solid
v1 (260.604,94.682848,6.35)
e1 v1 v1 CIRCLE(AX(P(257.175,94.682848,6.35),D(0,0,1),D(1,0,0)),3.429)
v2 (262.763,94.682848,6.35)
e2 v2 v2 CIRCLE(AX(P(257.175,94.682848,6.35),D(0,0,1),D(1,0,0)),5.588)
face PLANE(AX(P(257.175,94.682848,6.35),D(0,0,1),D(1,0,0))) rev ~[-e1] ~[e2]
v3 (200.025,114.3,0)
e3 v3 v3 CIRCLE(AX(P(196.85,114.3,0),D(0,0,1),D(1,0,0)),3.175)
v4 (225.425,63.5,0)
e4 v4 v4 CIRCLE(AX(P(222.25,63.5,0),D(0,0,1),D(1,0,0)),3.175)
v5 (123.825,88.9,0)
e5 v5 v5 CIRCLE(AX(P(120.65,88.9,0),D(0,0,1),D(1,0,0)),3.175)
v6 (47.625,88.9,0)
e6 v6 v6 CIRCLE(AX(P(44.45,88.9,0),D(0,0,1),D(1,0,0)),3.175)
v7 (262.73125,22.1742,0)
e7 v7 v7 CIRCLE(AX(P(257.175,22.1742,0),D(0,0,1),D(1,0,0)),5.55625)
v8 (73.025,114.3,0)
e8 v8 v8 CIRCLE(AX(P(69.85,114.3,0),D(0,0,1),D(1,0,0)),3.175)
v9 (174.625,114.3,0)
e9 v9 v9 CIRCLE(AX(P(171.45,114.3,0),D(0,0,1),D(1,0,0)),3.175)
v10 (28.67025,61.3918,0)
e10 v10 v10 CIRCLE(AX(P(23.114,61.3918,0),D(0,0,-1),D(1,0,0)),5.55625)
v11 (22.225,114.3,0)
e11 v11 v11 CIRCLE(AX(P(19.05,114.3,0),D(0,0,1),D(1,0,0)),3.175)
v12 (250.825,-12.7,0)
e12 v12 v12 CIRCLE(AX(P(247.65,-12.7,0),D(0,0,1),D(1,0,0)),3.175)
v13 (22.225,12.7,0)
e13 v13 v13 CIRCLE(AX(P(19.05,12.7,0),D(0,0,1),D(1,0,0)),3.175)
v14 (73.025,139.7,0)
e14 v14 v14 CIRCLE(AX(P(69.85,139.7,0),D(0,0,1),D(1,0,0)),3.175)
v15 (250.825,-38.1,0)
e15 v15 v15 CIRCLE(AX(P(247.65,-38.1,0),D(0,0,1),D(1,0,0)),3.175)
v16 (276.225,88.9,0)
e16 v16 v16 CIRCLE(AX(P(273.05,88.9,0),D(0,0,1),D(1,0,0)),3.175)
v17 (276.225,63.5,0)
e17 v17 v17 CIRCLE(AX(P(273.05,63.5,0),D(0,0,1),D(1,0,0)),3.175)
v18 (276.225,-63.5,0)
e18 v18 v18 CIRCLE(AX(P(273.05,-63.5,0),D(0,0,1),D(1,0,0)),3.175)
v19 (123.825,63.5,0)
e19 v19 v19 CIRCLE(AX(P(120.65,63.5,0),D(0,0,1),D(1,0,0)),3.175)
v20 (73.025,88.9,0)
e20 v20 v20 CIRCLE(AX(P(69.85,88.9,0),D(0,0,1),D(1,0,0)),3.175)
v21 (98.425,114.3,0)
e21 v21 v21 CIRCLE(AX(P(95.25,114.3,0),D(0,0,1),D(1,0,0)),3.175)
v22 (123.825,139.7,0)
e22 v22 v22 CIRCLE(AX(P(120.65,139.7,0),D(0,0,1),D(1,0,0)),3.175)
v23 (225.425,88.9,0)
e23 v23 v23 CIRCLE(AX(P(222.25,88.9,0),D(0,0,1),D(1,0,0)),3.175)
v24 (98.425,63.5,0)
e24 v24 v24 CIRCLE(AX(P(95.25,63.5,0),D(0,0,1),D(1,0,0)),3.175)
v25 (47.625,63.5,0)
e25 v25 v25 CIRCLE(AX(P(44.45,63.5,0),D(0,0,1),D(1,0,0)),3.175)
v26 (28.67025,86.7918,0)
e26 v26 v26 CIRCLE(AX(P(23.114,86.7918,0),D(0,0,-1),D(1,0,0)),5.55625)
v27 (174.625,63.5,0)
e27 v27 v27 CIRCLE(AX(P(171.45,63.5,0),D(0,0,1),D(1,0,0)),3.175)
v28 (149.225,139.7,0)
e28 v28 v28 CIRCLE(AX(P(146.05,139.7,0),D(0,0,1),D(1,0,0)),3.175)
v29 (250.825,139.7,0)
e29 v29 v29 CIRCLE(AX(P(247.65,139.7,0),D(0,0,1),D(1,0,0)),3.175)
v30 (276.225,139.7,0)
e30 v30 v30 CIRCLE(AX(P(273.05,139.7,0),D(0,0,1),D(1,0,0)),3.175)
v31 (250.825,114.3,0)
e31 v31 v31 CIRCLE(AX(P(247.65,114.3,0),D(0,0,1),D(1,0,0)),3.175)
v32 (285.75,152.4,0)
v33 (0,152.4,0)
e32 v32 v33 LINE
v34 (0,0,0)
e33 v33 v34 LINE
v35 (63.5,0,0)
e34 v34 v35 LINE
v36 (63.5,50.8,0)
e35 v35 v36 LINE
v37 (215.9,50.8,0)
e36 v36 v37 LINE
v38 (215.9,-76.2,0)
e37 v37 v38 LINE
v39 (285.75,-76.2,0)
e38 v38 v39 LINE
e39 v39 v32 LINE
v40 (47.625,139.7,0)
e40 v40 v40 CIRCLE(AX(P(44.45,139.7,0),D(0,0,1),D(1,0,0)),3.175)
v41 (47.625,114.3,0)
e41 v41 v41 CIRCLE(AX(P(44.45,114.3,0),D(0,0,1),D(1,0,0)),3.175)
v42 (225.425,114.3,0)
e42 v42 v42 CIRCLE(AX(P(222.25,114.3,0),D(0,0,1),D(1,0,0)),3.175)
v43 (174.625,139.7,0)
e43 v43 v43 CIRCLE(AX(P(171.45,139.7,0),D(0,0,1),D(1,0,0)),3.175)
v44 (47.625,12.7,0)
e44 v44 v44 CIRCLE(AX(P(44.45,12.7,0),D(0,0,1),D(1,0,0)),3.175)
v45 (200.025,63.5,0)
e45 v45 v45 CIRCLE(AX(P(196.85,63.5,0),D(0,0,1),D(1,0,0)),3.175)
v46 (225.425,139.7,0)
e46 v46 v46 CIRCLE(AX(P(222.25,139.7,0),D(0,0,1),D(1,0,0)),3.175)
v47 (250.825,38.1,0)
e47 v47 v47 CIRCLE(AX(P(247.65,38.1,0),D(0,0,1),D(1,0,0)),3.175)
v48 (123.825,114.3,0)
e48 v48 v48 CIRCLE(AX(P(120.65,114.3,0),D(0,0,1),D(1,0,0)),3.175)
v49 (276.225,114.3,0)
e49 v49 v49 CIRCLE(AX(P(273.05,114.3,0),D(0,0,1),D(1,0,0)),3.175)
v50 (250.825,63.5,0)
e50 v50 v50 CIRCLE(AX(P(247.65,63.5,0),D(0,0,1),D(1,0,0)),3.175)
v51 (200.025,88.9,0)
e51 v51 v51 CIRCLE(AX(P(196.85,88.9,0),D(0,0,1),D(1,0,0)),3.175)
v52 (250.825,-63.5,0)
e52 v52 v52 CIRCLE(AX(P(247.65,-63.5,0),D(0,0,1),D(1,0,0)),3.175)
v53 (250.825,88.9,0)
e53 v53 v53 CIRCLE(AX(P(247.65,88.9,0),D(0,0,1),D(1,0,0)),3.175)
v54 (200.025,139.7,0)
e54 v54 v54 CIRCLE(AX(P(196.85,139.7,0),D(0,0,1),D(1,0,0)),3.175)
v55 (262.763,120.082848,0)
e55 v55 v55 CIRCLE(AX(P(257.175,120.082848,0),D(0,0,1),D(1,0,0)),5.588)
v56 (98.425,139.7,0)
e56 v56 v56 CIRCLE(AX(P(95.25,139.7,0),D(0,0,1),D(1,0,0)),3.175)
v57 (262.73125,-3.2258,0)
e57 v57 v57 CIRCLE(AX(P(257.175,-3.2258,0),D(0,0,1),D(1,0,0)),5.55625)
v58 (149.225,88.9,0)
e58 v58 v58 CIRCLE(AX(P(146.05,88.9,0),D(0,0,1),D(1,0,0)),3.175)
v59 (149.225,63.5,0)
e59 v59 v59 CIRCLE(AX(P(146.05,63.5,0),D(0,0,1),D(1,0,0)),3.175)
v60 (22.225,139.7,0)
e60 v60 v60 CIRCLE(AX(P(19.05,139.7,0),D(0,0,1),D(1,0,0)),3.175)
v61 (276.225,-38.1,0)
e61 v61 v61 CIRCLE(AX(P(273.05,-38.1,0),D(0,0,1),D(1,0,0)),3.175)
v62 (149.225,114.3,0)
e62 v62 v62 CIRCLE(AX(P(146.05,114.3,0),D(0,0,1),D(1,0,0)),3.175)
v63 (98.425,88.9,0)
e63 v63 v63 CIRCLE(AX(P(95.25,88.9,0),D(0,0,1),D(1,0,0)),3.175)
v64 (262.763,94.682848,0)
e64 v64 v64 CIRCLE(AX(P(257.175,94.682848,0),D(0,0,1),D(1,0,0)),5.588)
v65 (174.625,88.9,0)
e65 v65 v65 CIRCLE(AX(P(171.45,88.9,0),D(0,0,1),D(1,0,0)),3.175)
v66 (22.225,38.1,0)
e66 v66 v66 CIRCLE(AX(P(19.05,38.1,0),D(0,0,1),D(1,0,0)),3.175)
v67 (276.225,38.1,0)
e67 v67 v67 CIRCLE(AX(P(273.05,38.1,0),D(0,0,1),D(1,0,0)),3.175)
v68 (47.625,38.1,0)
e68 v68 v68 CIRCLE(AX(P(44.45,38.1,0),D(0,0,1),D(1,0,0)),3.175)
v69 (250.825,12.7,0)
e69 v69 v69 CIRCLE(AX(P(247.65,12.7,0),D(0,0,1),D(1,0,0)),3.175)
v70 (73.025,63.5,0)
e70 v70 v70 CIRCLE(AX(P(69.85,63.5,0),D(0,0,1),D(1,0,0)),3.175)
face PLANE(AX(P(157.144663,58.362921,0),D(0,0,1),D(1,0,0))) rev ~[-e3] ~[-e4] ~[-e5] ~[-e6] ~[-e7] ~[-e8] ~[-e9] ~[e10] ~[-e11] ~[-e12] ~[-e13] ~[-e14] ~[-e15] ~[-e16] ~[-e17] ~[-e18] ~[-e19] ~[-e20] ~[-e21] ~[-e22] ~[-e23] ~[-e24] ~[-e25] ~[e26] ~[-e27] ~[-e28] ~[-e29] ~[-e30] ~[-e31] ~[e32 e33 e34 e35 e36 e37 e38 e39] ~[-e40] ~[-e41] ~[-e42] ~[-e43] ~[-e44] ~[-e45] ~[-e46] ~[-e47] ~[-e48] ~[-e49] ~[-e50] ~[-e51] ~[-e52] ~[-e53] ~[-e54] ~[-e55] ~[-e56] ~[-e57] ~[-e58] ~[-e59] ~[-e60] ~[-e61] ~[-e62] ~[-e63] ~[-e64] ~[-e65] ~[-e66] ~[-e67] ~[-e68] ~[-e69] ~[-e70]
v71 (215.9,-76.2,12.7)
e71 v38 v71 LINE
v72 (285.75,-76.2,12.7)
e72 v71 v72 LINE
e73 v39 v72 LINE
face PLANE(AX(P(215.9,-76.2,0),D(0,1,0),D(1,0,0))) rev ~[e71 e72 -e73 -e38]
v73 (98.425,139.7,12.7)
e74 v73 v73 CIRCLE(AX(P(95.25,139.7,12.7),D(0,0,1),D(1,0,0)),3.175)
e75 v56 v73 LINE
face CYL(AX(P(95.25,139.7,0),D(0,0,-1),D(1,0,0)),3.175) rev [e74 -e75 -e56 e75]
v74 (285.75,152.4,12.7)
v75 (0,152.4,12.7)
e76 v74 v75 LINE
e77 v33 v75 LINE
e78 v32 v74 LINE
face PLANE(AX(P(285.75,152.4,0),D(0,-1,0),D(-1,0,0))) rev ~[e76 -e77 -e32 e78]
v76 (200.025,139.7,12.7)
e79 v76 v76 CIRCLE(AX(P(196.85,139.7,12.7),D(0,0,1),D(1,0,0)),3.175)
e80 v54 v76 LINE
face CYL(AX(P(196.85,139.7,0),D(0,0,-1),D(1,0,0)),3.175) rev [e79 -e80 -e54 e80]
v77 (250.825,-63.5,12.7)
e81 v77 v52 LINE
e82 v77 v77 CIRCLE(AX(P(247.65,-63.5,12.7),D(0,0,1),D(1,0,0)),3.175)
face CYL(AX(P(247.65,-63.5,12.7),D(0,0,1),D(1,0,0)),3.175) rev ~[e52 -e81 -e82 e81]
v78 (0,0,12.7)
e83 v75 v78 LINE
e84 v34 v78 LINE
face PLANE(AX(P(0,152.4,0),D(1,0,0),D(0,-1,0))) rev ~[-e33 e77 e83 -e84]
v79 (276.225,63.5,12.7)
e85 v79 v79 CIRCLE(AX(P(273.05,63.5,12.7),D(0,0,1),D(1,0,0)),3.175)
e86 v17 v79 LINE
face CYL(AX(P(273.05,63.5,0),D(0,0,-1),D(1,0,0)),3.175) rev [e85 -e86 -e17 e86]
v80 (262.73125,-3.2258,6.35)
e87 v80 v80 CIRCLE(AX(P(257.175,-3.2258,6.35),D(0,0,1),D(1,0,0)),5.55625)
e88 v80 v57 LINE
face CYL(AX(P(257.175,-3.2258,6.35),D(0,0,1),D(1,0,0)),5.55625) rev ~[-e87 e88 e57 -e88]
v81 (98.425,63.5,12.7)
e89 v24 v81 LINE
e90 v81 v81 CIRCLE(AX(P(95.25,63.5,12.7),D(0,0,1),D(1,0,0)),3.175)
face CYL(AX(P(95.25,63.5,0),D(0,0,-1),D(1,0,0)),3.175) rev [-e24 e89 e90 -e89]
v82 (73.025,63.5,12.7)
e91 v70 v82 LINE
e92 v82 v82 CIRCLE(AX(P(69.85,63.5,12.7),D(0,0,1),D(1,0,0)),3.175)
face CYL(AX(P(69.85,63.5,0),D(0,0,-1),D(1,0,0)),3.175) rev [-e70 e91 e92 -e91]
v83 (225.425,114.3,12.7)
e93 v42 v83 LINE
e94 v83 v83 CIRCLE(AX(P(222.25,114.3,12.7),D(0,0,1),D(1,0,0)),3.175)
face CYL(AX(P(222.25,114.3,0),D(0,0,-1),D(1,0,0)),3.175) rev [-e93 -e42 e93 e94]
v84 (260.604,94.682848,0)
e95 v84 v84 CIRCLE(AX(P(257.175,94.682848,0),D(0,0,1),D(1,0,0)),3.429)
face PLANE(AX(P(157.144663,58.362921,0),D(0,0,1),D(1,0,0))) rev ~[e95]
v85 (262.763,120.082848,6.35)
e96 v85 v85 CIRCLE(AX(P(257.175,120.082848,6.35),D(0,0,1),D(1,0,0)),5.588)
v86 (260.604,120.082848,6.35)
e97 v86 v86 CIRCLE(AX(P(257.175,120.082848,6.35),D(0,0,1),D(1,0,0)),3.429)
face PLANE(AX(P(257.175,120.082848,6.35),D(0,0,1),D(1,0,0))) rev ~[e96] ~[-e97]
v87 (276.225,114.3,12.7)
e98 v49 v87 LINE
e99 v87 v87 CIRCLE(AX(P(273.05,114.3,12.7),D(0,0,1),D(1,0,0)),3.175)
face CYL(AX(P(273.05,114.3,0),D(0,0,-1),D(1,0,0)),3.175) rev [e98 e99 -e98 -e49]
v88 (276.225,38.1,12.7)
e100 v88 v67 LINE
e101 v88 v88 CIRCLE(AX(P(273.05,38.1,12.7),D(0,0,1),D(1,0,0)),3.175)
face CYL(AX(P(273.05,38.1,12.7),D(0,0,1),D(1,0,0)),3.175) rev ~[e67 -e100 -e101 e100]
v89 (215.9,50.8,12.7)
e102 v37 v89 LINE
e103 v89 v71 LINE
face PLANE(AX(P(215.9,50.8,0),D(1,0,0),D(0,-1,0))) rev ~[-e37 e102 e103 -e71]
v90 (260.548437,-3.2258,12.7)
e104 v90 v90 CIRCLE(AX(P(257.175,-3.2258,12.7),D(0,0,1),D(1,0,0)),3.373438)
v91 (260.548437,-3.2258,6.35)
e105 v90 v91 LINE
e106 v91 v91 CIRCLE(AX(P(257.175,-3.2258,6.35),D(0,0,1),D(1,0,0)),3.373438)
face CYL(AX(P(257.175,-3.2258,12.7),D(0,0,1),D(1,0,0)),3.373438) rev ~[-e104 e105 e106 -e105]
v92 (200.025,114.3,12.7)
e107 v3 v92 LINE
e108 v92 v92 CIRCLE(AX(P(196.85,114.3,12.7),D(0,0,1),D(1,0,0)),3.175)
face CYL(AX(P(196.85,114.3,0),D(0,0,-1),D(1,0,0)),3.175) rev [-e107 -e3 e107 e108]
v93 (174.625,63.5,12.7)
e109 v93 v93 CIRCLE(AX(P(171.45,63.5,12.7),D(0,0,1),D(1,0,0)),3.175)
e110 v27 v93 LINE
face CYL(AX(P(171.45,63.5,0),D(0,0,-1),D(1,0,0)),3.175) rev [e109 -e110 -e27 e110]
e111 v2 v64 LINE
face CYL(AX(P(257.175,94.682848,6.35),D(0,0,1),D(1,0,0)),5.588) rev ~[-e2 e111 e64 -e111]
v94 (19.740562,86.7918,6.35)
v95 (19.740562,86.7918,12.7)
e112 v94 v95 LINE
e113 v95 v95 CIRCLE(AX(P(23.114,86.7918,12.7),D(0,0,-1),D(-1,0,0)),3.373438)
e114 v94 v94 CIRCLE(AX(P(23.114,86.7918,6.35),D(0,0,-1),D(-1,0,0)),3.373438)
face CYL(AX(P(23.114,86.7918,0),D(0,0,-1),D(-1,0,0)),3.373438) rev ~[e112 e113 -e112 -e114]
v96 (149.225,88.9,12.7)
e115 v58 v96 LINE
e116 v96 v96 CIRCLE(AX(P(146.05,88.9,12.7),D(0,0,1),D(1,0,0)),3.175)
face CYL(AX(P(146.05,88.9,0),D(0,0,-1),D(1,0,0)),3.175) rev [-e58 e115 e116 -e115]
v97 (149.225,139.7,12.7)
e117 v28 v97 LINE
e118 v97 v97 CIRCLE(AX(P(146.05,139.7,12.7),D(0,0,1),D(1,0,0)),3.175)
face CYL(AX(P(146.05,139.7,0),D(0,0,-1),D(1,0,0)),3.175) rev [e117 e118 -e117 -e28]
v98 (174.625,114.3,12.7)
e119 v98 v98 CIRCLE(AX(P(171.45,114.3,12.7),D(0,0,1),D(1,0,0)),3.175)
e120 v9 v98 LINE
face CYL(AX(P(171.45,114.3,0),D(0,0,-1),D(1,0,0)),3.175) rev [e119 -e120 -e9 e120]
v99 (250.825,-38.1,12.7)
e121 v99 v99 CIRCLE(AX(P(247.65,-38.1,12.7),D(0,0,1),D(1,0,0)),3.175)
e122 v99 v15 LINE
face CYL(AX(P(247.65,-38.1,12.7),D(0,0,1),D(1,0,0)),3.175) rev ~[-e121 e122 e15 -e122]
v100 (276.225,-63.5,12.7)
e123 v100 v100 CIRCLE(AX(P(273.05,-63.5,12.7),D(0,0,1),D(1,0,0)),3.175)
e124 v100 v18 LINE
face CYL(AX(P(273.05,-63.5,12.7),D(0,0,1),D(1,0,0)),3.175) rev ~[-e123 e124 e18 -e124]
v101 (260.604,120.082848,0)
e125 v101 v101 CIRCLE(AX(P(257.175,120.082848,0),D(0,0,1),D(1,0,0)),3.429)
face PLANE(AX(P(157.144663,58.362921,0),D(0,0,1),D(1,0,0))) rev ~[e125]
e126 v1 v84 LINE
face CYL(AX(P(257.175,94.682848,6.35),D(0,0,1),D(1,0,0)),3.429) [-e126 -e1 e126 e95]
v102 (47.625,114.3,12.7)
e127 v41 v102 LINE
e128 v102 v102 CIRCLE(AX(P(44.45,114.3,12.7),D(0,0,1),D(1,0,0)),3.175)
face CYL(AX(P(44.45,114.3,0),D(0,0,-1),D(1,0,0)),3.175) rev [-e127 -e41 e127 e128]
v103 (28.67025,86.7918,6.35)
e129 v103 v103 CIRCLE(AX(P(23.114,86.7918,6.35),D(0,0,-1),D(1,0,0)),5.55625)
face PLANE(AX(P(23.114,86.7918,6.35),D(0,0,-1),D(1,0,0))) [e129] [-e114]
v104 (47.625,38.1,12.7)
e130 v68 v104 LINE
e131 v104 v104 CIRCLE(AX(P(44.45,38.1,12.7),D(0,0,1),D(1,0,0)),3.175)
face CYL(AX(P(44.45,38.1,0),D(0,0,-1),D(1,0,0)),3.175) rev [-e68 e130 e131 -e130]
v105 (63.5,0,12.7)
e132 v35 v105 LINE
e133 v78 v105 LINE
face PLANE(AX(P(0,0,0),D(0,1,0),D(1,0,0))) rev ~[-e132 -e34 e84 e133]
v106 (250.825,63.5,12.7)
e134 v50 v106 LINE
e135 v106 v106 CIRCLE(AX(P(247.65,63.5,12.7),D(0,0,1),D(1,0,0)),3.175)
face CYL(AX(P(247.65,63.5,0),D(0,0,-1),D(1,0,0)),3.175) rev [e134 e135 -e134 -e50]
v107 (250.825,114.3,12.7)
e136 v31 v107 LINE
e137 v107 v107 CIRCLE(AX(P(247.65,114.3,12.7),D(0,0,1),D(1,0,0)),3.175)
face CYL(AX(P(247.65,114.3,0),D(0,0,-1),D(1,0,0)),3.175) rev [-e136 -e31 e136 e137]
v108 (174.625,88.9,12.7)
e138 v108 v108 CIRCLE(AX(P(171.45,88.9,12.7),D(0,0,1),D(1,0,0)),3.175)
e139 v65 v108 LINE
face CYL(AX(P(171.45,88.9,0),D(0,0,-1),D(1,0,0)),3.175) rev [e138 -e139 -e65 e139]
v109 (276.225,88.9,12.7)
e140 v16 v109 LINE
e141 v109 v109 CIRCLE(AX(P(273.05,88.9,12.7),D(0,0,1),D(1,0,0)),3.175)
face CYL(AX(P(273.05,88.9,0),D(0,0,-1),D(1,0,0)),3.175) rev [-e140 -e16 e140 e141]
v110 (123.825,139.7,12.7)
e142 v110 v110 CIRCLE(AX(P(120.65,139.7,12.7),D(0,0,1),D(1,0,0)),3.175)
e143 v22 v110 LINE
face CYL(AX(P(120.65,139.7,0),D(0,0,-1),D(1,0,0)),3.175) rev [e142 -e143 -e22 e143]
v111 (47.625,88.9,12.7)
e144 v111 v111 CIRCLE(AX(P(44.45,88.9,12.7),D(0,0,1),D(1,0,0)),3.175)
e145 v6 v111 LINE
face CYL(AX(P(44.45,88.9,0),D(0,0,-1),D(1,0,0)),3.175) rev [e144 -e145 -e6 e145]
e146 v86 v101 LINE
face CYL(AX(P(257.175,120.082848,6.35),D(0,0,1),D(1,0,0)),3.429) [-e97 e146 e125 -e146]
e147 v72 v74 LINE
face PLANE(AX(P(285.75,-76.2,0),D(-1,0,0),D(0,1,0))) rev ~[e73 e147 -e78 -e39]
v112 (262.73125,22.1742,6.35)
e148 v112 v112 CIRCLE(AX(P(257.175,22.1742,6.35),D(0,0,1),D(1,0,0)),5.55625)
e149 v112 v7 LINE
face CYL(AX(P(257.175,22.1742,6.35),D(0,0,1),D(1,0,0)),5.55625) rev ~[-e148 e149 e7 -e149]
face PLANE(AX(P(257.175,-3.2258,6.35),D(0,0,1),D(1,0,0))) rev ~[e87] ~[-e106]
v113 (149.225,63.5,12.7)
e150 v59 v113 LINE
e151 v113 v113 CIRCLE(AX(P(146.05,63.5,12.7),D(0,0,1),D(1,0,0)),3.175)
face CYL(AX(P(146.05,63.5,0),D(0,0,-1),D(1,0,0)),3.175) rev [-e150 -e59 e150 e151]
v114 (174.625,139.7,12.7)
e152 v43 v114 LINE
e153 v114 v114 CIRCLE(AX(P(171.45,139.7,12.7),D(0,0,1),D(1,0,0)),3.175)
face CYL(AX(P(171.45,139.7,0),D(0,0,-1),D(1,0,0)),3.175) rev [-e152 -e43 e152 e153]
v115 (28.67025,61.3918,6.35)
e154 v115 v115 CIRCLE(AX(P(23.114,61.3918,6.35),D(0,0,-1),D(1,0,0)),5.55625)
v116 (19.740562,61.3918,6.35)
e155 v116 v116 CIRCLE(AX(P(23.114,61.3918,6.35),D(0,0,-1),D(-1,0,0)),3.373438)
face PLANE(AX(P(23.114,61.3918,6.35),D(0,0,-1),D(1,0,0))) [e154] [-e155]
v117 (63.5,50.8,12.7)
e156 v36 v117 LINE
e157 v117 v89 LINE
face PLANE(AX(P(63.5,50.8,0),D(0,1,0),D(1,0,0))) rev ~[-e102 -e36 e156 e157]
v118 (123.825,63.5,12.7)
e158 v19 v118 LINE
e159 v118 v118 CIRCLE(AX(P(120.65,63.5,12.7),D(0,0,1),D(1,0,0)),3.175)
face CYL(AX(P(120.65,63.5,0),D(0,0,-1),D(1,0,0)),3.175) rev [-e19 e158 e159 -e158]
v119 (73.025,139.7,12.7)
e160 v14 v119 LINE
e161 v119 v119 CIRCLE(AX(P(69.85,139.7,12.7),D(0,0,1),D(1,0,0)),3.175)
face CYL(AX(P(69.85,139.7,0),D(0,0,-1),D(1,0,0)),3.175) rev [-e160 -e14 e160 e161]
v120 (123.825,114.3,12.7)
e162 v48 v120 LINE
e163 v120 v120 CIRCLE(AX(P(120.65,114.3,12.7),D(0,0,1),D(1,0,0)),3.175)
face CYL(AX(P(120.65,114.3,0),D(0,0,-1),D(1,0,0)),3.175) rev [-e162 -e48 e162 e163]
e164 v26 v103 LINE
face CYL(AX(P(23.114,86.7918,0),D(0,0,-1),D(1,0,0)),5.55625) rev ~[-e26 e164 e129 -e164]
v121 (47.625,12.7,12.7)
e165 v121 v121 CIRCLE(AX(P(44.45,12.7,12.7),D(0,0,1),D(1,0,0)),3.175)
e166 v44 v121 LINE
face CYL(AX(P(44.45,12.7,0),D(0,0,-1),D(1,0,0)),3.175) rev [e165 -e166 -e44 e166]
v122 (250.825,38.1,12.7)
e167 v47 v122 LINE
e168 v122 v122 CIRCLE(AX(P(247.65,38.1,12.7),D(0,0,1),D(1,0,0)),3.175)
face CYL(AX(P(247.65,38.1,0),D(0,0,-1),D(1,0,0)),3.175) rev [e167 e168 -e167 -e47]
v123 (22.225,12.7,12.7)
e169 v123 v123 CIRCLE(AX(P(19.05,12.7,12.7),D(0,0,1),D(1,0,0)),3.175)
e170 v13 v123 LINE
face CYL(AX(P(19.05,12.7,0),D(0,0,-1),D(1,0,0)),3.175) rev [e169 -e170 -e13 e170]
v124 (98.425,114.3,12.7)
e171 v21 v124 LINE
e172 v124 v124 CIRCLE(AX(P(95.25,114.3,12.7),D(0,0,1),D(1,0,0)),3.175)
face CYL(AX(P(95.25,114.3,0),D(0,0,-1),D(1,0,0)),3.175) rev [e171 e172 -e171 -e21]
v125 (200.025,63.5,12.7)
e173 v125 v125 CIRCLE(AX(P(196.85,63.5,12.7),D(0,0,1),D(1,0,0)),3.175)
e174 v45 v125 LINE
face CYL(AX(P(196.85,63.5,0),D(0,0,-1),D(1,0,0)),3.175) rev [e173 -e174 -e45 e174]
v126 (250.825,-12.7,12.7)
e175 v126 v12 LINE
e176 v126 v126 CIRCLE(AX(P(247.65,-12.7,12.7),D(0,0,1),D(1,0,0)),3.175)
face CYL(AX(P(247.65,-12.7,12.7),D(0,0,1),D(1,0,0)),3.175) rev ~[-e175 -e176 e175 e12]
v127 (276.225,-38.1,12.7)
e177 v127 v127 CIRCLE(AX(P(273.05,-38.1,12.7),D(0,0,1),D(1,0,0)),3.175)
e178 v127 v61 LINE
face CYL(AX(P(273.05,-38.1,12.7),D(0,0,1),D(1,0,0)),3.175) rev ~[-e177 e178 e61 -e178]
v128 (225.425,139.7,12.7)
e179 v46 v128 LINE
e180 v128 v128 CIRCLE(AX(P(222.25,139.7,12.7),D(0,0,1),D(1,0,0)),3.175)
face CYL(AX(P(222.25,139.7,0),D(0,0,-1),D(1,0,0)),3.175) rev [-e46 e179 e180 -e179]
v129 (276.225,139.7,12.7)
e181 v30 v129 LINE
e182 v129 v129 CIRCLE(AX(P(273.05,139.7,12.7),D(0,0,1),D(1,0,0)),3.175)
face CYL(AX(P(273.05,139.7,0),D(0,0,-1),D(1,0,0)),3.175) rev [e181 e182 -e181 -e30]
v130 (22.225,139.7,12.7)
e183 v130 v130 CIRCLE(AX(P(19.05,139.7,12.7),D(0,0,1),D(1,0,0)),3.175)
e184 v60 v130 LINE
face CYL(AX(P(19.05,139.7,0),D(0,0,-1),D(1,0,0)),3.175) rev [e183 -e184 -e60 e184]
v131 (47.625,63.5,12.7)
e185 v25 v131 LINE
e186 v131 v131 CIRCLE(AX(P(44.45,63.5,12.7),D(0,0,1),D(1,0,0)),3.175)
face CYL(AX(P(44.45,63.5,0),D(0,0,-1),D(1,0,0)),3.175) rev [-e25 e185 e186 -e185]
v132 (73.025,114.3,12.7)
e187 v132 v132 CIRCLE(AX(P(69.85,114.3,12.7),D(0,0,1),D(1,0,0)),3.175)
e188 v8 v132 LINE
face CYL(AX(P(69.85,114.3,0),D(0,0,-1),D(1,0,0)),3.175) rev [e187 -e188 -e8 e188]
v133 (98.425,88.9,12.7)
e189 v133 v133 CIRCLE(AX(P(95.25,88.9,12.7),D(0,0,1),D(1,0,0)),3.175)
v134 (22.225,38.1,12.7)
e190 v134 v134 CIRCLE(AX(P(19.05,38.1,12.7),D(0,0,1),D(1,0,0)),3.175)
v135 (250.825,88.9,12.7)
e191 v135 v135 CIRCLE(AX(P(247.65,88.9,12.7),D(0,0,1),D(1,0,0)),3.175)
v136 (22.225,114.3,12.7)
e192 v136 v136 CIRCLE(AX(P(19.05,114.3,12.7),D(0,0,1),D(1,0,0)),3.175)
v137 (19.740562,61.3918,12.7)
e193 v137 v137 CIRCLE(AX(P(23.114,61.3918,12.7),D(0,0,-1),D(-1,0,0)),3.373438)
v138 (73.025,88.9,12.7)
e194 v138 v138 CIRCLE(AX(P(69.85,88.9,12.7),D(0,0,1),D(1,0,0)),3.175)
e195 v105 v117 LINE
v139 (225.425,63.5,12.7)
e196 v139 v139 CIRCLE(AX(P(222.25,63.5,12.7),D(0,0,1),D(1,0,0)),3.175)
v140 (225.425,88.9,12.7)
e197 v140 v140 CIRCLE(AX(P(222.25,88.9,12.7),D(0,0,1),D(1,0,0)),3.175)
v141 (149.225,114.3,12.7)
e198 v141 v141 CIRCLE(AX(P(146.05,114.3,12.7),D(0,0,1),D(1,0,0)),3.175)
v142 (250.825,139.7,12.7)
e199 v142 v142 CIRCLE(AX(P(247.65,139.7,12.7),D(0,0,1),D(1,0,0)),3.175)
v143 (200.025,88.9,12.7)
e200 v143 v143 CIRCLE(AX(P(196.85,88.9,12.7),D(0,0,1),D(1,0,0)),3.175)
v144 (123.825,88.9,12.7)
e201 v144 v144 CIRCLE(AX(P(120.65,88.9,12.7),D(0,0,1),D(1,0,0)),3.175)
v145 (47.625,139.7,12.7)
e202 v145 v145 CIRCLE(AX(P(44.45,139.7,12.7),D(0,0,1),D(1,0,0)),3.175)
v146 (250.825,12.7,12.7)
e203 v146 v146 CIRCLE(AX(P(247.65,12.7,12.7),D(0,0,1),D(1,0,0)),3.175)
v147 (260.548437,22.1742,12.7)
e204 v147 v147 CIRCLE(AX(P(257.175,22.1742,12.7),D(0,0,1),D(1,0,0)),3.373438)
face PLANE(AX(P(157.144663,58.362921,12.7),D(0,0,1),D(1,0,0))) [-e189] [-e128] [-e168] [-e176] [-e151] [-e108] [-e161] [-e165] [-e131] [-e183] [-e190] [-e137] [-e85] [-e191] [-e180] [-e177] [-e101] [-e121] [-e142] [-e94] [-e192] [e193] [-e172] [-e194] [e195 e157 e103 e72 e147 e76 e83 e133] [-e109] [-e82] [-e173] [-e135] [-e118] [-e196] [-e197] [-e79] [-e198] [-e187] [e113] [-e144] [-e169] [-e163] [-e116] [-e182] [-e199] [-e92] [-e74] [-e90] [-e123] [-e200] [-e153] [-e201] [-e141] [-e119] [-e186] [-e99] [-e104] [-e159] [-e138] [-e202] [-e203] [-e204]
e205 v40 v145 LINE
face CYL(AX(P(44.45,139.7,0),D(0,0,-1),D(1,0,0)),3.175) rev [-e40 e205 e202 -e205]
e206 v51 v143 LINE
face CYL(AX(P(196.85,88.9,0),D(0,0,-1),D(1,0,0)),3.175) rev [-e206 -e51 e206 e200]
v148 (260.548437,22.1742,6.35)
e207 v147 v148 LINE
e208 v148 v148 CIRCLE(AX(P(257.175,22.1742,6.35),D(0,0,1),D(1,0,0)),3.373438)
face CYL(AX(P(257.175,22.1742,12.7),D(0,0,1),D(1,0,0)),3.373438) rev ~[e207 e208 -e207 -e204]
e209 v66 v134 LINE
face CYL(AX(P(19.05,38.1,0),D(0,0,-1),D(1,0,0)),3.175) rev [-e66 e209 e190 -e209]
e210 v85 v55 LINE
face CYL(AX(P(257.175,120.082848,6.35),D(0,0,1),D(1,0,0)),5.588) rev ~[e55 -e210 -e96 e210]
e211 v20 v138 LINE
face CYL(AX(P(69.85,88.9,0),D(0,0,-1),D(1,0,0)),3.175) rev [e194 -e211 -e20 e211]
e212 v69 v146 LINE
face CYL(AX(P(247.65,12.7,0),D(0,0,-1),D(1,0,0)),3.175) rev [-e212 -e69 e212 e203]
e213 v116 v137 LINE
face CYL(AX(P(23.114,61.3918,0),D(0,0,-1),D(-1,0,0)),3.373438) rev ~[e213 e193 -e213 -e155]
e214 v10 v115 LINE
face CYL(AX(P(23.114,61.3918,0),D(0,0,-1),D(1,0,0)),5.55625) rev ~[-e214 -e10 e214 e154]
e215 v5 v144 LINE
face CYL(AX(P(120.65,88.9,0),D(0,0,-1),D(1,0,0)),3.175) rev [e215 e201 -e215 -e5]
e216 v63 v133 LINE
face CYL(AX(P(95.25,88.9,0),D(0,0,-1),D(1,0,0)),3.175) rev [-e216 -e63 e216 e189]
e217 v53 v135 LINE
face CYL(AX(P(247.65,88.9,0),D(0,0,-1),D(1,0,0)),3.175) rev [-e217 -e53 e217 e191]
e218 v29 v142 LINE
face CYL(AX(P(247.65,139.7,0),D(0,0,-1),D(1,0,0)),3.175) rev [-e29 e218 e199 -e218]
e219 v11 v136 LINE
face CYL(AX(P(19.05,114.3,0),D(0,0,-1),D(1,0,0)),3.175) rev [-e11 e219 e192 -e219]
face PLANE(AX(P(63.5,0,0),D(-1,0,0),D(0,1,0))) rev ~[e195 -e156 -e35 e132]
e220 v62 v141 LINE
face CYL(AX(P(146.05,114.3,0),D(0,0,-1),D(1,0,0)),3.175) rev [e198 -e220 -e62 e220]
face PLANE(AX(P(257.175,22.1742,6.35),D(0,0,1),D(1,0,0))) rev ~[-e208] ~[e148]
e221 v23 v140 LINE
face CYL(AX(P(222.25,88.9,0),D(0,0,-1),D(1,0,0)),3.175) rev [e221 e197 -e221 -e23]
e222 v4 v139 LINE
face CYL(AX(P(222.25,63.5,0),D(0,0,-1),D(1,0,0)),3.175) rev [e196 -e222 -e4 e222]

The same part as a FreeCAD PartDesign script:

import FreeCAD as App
import Part
import Sketcher
from FreeCAD import Vector
Q = App.Units.Quantity

doc = App.newDocument("Part")
params = doc.addObject("Spreadsheet::Sheet", "Params")
for row, (alias, value) in enumerate([
    ("sketch1_diameter", "0.25 in"),
    ("sketch1_width", "6 in"),
    ("sketch1_height", "2 in"),
    ("sketch1_height2", "5 in"),
    ("sketch1_width2", "2.5 in"),
    ("pad1_length", "0.5 in"),
    ("sketch2_diameter", "0.25 in"),
    ("pocket1_length", "0.5 in"),
    ("sketch3_diameter", "0.265625 in"),
    ("pocket2_length", "0.5 in"),
    ("sketch4_diameter", "0.44 in"),
    ("sketch4_diameter2", "0.27 in"),
    ("sketch4_diameter3", "0.4375 in"),
    ("sketch4_diameter4", "0.265625 in"),
    ("pocket3_length", "0.25 in"),
    ("sketch5_diameter", "0.265625 in"),
    ("pocket4_length", "0.5 in"),
    ("sketch6_diameter", "0.4375 in"),
    ("sketch6_diameter2", "0.265625 in"),
    ("pocket5_length", "0.25 in"),
], start=1):
    params.set(f"A{row}", alias)
    params.set(f"B{row}", "=" + value)
    params.setAlias(f"B{row}", alias)

body = doc.addObject("PartDesign::Body", "Body")

sketch1 = body.newObject("Sketcher::SketchObject", "Sketch")
sketch1.AttachmentSupport = (doc.getObject("XY_Plane"), [""])
sketch1.MapMode = "FlatFace"
sketch1.addGeometry([
    Part.LineSegment(Vector(0, 152.4, 0), Vector(0, 0, 0)),
    Part.LineSegment(Vector(0, 0, 0), Vector(63.5, 0, 0)),
    Part.LineSegment(Vector(63.5, 0, 0), Vector(63.5, 50.8, 0)),
    Part.LineSegment(Vector(63.5, 50.8, 0), Vector(215.9, 50.8, 0)),
    Part.LineSegment(Vector(215.9, 50.8, 0), Vector(215.9, -76.2, 0)),
    Part.LineSegment(Vector(215.9, -76.2, 0), Vector(285.8, -76.2, 0)),
    Part.LineSegment(Vector(285.8, -76.2, 0), Vector(285.8, 152.4, 0)),
    Part.LineSegment(Vector(285.8, 152.4, 0), Vector(0, 152.4, 0)),
    Part.Circle(Vector(19.1, 12.7, 0), Vector(0, 0, 1), 3.2),
    Part.Circle(Vector(44.5, 12.7, 0), Vector(0, 0, 1), 3.2),
    Part.Circle(Vector(19.1, 38.1, 0), Vector(0, 0, 1), 3.2),
    Part.Circle(Vector(44.5, 38.1, 0), Vector(0, 0, 1), 3.2),
    Part.Circle(Vector(44.5, 63.5, 0), Vector(0, 0, 1), 3.2),
    Part.Circle(Vector(69.8, 63.5, 0), Vector(0, 0, 1), 3.2),
    Part.Circle(Vector(95.2, 63.5, 0), Vector(0, 0, 1), 3.2),
    Part.Circle(Vector(120.7, 63.5, 0), Vector(0, 0, 1), 3.2),
    Part.Circle(Vector(247.7, 12.7, 0), Vector(0, 0, 1), 3.2),
    Part.Circle(Vector(247.7, 38.1, 0), Vector(0, 0, 1), 3.2),
    Part.Circle(Vector(146.1, 63.5, 0), Vector(0, 0, 1), 3.2),
    Part.Circle(Vector(171.4, 63.5, 0), Vector(0, 0, 1), 3.2),
    Part.Circle(Vector(196.8, 63.5, 0), Vector(0, 0, 1), 3.2),
    Part.Circle(Vector(222.2, 63.5, 0), Vector(0, 0, 1), 3.2),
    Part.Circle(Vector(247.7, 63.5, 0), Vector(0, 0, 1), 3.2),
    Part.Circle(Vector(273.1, 63.5, 0), Vector(0, 0, 1), 3.2),
    Part.Circle(Vector(44.5, 88.9, 0), Vector(0, 0, 1), 3.2),
    Part.Circle(Vector(69.8, 88.9, 0), Vector(0, 0, 1), 3.2),
    Part.Circle(Vector(95.2, 88.9, 0), Vector(0, 0, 1), 3.2),
    Part.Circle(Vector(120.7, 88.9, 0), Vector(0, 0, 1), 3.2),
    Part.Circle(Vector(19.1, 114.3, 0), Vector(0, 0, 1), 3.2),
    Part.Circle(Vector(44.5, 114.3, 0), Vector(0, 0, 1), 3.2),
    Part.Circle(Vector(69.8, 114.3, 0), Vector(0, 0, 1), 3.2),
    Part.Circle(Vector(19.1, 139.7, 0), Vector(0, 0, 1), 3.2),
    Part.Circle(Vector(44.5, 139.7, 0), Vector(0, 0, 1), 3.2),
    Part.Circle(Vector(69.8, 139.7, 0), Vector(0, 0, 1), 3.2),
    Part.Circle(Vector(95.2, 114.3, 0), Vector(0, 0, 1), 3.2),
    Part.Circle(Vector(120.7, 114.3, 0), Vector(0, 0, 1), 3.2),
    Part.Circle(Vector(95.2, 139.7, 0), Vector(0, 0, 1), 3.2),
    Part.Circle(Vector(120.7, 139.7, 0), Vector(0, 0, 1), 3.2),
    Part.Circle(Vector(146.1, 88.9, 0), Vector(0, 0, 1), 3.2),
    Part.Circle(Vector(171.4, 88.9, 0), Vector(0, 0, 1), 3.2),
    Part.Circle(Vector(196.8, 88.9, 0), Vector(0, 0, 1), 3.2),
    Part.Circle(Vector(222.2, 88.9, 0), Vector(0, 0, 1), 3.2),
    Part.Circle(Vector(247.7, 88.9, 0), Vector(0, 0, 1), 3.2),
    Part.Circle(Vector(273.1, 88.9, 0), Vector(0, 0, 1), 3.2),
    Part.Circle(Vector(146.1, 114.3, 0), Vector(0, 0, 1), 3.2),
    Part.Circle(Vector(171.4, 114.3, 0), Vector(0, 0, 1), 3.2),
    Part.Circle(Vector(196.8, 114.3, 0), Vector(0, 0, 1), 3.2),
    Part.Circle(Vector(146.1, 139.7, 0), Vector(0, 0, 1), 3.2),
    Part.Circle(Vector(171.4, 139.7, 0), Vector(0, 0, 1), 3.2),
    Part.Circle(Vector(196.8, 139.7, 0), Vector(0, 0, 1), 3.2),
    Part.Circle(Vector(222.2, 114.3, 0), Vector(0, 0, 1), 3.2),
    Part.Circle(Vector(247.7, 114.3, 0), Vector(0, 0, 1), 3.2),
    Part.Circle(Vector(273.1, 114.3, 0), Vector(0, 0, 1), 3.2),
    Part.Circle(Vector(222.2, 139.7, 0), Vector(0, 0, 1), 3.2),
    Part.Circle(Vector(247.7, 139.7, 0), Vector(0, 0, 1), 3.2),
    Part.Circle(Vector(273.1, 139.7, 0), Vector(0, 0, 1), 3.2),
], False)
sketch1.addConstraint([
    Sketcher.Constraint("Coincident", 0, 2, 1, 1),
    Sketcher.Constraint("Coincident", 1, 2, 2, 1),
    Sketcher.Constraint("Coincident", 2, 2, 3, 1),
    Sketcher.Constraint("Coincident", 3, 2, 4, 1),
    Sketcher.Constraint("Coincident", 4, 2, 5, 1),
    Sketcher.Constraint("Coincident", 5, 2, 6, 1),
    Sketcher.Constraint("Coincident", 6, 2, 7, 1),
    Sketcher.Constraint("Coincident", 7, 2, 0, 1),
    Sketcher.Constraint("Vertical", 0),
    Sketcher.Constraint("Horizontal", 1),
    Sketcher.Constraint("Vertical", 2),
    Sketcher.Constraint("Horizontal", 3),
    Sketcher.Constraint("Vertical", 4),
    Sketcher.Constraint("Horizontal", 5),
    Sketcher.Constraint("Vertical", 6),
    Sketcher.Constraint("Horizontal", 7),
    Sketcher.Constraint("Coincident", 0, 2, -1, 1),
    Sketcher.Constraint("Equal", 8, 9),
    Sketcher.Constraint("Equal", 9, 10),
    Sketcher.Constraint("Equal", 10, 11),
    Sketcher.Constraint("Equal", 11, 12),
    Sketcher.Constraint("Equal", 12, 13),
    Sketcher.Constraint("Equal", 13, 14),
    Sketcher.Constraint("Equal", 14, 15),
    Sketcher.Constraint("Equal", 15, 16),
    Sketcher.Constraint("Equal", 16, 17),
    Sketcher.Constraint("Equal", 17, 18),
    Sketcher.Constraint("Equal", 18, 19),
    Sketcher.Constraint("Equal", 19, 20),
    Sketcher.Constraint("Equal", 20, 21),
    Sketcher.Constraint("Equal", 21, 22),
    Sketcher.Constraint("Equal", 22, 23),
    Sketcher.Constraint("Equal", 23, 24),
    Sketcher.Constraint("Equal", 24, 25),
    Sketcher.Constraint("Equal", 25, 26),
    Sketcher.Constraint("Equal", 26, 27),
    Sketcher.Constraint("Equal", 27, 28),
    Sketcher.Constraint("Equal", 28, 29),
    Sketcher.Constraint("Equal", 29, 30),
    Sketcher.Constraint("Equal", 30, 31),
    Sketcher.Constraint("Equal", 31, 32),
    Sketcher.Constraint("Equal", 32, 33),
    Sketcher.Constraint("Equal", 33, 34),
    Sketcher.Constraint("Equal", 34, 35),
    Sketcher.Constraint("Equal", 35, 36),
    Sketcher.Constraint("Equal", 36, 37),
    Sketcher.Constraint("Equal", 37, 38),
    Sketcher.Constraint("Equal", 38, 39),
    Sketcher.Constraint("Equal", 39, 40),
    Sketcher.Constraint("Equal", 40, 41),
    Sketcher.Constraint("Equal", 41, 42),
    Sketcher.Constraint("Equal", 42, 43),
    Sketcher.Constraint("Equal", 43, 44),
    Sketcher.Constraint("Equal", 44, 45),
    Sketcher.Constraint("Equal", 45, 46),
    Sketcher.Constraint("Equal", 46, 47),
    Sketcher.Constraint("Equal", 47, 48),
    Sketcher.Constraint("Equal", 48, 49),
    Sketcher.Constraint("Equal", 49, 50),
    Sketcher.Constraint("Equal", 50, 51),
    Sketcher.Constraint("Equal", 51, 52),
    Sketcher.Constraint("Equal", 52, 53),
    Sketcher.Constraint("Equal", 53, 54),
    Sketcher.Constraint("Equal", 54, 55),
    Sketcher.Constraint("Horizontal", 8, 3, 9, 3),
    Sketcher.Constraint("Horizontal", 10, 3, 11, 3),
    Sketcher.Constraint("Horizontal", 12, 3, 13, 3),
    Sketcher.Constraint("Horizontal", 13, 3, 14, 3),
    Sketcher.Constraint("Horizontal", 14, 3, 15, 3),
    Sketcher.Constraint("Horizontal", 9, 3, 16, 3),
    Sketcher.Constraint("Horizontal", 11, 3, 17, 3),
    Sketcher.Constraint("Horizontal", 15, 3, 18, 3),
    Sketcher.Constraint("Horizontal", 18, 3, 19, 3),
    Sketcher.Constraint("Horizontal", 19, 3, 20, 3),
    Sketcher.Constraint("Horizontal", 20, 3, 21, 3),
    Sketcher.Constraint("Horizontal", 21, 3, 22, 3),
    Sketcher.Constraint("Horizontal", 22, 3, 23, 3),
    Sketcher.Constraint("Horizontal", 24, 3, 25, 3),
    Sketcher.Constraint("Horizontal", 25, 3, 26, 3),
    Sketcher.Constraint("Horizontal", 26, 3, 27, 3),
    Sketcher.Constraint("Horizontal", 28, 3, 29, 3),
    Sketcher.Constraint("Horizontal", 29, 3, 30, 3),
    Sketcher.Constraint("Horizontal", 31, 3, 32, 3),
    Sketcher.Constraint("Horizontal", 32, 3, 33, 3),
    Sketcher.Constraint("Horizontal", 30, 3, 34, 3),
    Sketcher.Constraint("Horizontal", 34, 3, 35, 3),
    Sketcher.Constraint("Horizontal", 33, 3, 36, 3),
    Sketcher.Constraint("Horizontal", 36, 3, 37, 3),
    Sketcher.Constraint("Horizontal", 27, 3, 38, 3),
    Sketcher.Constraint("Horizontal", 38, 3, 39, 3),
    Sketcher.Constraint("Horizontal", 39, 3, 40, 3),
    Sketcher.Constraint("Horizontal", 40, 3, 41, 3),
    Sketcher.Constraint("Horizontal", 41, 3, 42, 3),
    Sketcher.Constraint("Horizontal", 42, 3, 43, 3),
    Sketcher.Constraint("Horizontal", 35, 3, 44, 3),
    Sketcher.Constraint("Horizontal", 44, 3, 45, 3),
    Sketcher.Constraint("Horizontal", 45, 3, 46, 3),
    Sketcher.Constraint("Horizontal", 37, 3, 47, 3),
    Sketcher.Constraint("Horizontal", 47, 3, 48, 3),
    Sketcher.Constraint("Horizontal", 48, 3, 49, 3),
    Sketcher.Constraint("Horizontal", 46, 3, 50, 3),
    Sketcher.Constraint("Horizontal", 50, 3, 51, 3),
    Sketcher.Constraint("Horizontal", 51, 3, 52, 3),
    Sketcher.Constraint("Horizontal", 49, 3, 53, 3),
    Sketcher.Constraint("Horizontal", 53, 3, 54, 3),
    Sketcher.Constraint("Horizontal", 54, 3, 55, 3),
    Sketcher.Constraint("Vertical", 8, 3, 10, 3),
    Sketcher.Constraint("Vertical", 9, 3, 11, 3),
    Sketcher.Constraint("Vertical", 11, 3, 12, 3),
    Sketcher.Constraint("Vertical", 16, 3, 17, 3),
    Sketcher.Constraint("Vertical", 17, 3, 22, 3),
    Sketcher.Constraint("Vertical", 12, 3, 24, 3),
    Sketcher.Constraint("Vertical", 13, 3, 25, 3),
    Sketcher.Constraint("Vertical", 14, 3, 26, 3),
    Sketcher.Constraint("Vertical", 15, 3, 27, 3),
    Sketcher.Constraint("Vertical", 10, 3, 28, 3),
    Sketcher.Constraint("Vertical", 24, 3, 29, 3),
    Sketcher.Constraint("Vertical", 25, 3, 30, 3),
    Sketcher.Constraint("Vertical", 28, 3, 31, 3),
    Sketcher.Constraint("Vertical", 29, 3, 32, 3),
    Sketcher.Constraint("Vertical", 30, 3, 33, 3),
    Sketcher.Constraint("Vertical", 26, 3, 34, 3),
    Sketcher.Constraint("Vertical", 27, 3, 35, 3),
    Sketcher.Constraint("Vertical", 34, 3, 36, 3),
    Sketcher.Constraint("Vertical", 35, 3, 37, 3),
    Sketcher.Constraint("Vertical", 18, 3, 38, 3),
    Sketcher.Constraint("Vertical", 19, 3, 39, 3),
    Sketcher.Constraint("Vertical", 20, 3, 40, 3),
    Sketcher.Constraint("Vertical", 21, 3, 41, 3),
    Sketcher.Constraint("Vertical", 22, 3, 42, 3),
    Sketcher.Constraint("Vertical", 23, 3, 43, 3),
    Sketcher.Constraint("Vertical", 38, 3, 44, 3),
    Sketcher.Constraint("Vertical", 39, 3, 45, 3),
    Sketcher.Constraint("Vertical", 40, 3, 46, 3),
    Sketcher.Constraint("Vertical", 44, 3, 47, 3),
    Sketcher.Constraint("Vertical", 45, 3, 48, 3),
    Sketcher.Constraint("Vertical", 46, 3, 49, 3),
    Sketcher.Constraint("Vertical", 41, 3, 50, 3),
    Sketcher.Constraint("Vertical", 42, 3, 51, 3),
    Sketcher.Constraint("Vertical", 43, 3, 52, 3),
    Sketcher.Constraint("Vertical", 50, 3, 53, 3),
    Sketcher.Constraint("Vertical", 51, 3, 54, 3),
    Sketcher.Constraint("Vertical", 52, 3, 55, 3),
    Sketcher.Constraint("Equal", 3, 0),
    Sketcher.Constraint("Diameter", 8, Q("0.25 in")),
    Sketcher.Constraint("DistanceX", 3, 1, 3, 2, Q("6 in")),
    Sketcher.Constraint("DistanceY", 2, 1, 2, 2, Q("2 in")),
    Sketcher.Constraint("DistanceY", 4, 2, 4, 1, Q("5 in")),
    Sketcher.Constraint("DistanceX", 1, 1, 1, 2, Q("2.5 in")),
    Sketcher.Constraint("DistanceX", 8, 3, 9, 3, Q("1 in")),
    Sketcher.Constraint("DistanceY", 8, 3, 10, 3, Q("1 in")),
    Sketcher.Constraint("DistanceY", 11, 3, 12, 3, Q("1 in")),
    Sketcher.Constraint("DistanceX", 12, 3, 13, 3, Q("1 in")),
    Sketcher.Constraint("DistanceX", 13, 3, 14, 3, Q("1 in")),
    Sketcher.Constraint("DistanceX", 14, 3, 15, 3, Q("1 in")),
    Sketcher.Constraint("DistanceX", 15, 3, 16, 3, Q("5 in")),
    Sketcher.Constraint("DistanceX", 15, 3, 18, 3, Q("1 in")),
    Sketcher.Constraint("DistanceX", 18, 3, 19, 3, Q("1 in")),
    Sketcher.Constraint("DistanceX", 19, 3, 20, 3, Q("1 in")),
    Sketcher.Constraint("DistanceX", 20, 3, 21, 3, Q("1 in")),
    Sketcher.Constraint("DistanceX", 22, 3, 23, 3, Q("1 in")),
    Sketcher.Constraint("DistanceY", 12, 3, 24, 3, Q("1 in")),
    Sketcher.Constraint("DistanceY", 24, 3, 28, 3, Q("1 in")),
    Sketcher.Constraint("DistanceY", 28, 3, 31, 3, Q("1 in")),
    Sketcher.Constraint("DistanceX", 5, 1, 5, 2, Q("2.75 in")),
    Sketcher.Constraint("DistanceY", -1, 1, 8, 3, Q("0.5 in")),
    Sketcher.Constraint("DistanceX", 16, 3, 5, 2, Q("1.5 in")),
])
sketch1.setExpression("Constraints[144]", "Params.sketch1_diameter")
sketch1.setExpression("Constraints[145]", "Params.sketch1_width")
sketch1.setExpression("Constraints[146]", "Params.sketch1_height")
sketch1.setExpression("Constraints[147]", "Params.sketch1_height2")
sketch1.setExpression("Constraints[148]", "Params.sketch1_width2")
pad1 = body.newObject("PartDesign::Pad", "Pad")
pad1.Profile = sketch1
pad1.setExpression("Length", "Params.pad1_length")

sketch2 = body.newObject("Sketcher::SketchObject", "Sketch001")
sketch2.AttachmentSupport = (doc.getObject("XY_Plane"), [""])
sketch2.MapMode = "FlatFace"
sketch2.AttachmentOffset = App.Placement(Vector(0, 0, 0.5 * 25.4), App.Rotation())
sketch2.addGeometry([
    Part.Circle(Vector(247.7, -12.7, 0), Vector(0, 0, 1), 3.2),
    Part.Circle(Vector(247.7, -38.1, 0), Vector(0, 0, 1), 3.2),
    Part.Circle(Vector(247.7, -63.5, 0), Vector(0, 0, 1), 3.2),
    Part.Circle(Vector(273.1, -38.1, 0), Vector(0, 0, 1), 3.2),
    Part.Circle(Vector(273.1, -63.5, 0), Vector(0, 0, 1), 3.2),
    Part.Circle(Vector(273.1, 38.1, 0), Vector(0, 0, 1), 3.2),
], False)
sketch2.addConstraint([
    Sketcher.Constraint("Equal", 0, 1),
    Sketcher.Constraint("Equal", 1, 2),
    Sketcher.Constraint("Equal", 2, 3),
    Sketcher.Constraint("Equal", 3, 4),
    Sketcher.Constraint("Equal", 4, 5),
    Sketcher.Constraint("Symmetric", 3, 3, 5, 3, -1),
    Sketcher.Constraint("Horizontal", 1, 3, 3, 3),
    Sketcher.Constraint("Horizontal", 2, 3, 4, 3),
    Sketcher.Constraint("Vertical", 0, 3, 1, 3),
    Sketcher.Constraint("Vertical", 1, 3, 2, 3),
    Sketcher.Constraint("Vertical", 3, 3, 4, 3),
    Sketcher.Constraint("Diameter", 0, Q("0.25 in")),
    Sketcher.Constraint("DistanceY", 1, 3, 0, 3, Q("1 in")),
    Sketcher.Constraint("DistanceY", 2, 3, 1, 3, Q("1 in")),
    Sketcher.Constraint("DistanceX", 1, 3, 3, 3, Q("1 in")),
    Sketcher.Constraint("DistanceY", 0, 3, 5, 3, Q("2 in")),
    Sketcher.Constraint("DistanceX", -1, 1, 0, 3, Q("9.75 in")),
])
sketch2.setExpression("Constraints[11]", "Params.sketch2_diameter")
pocket1 = body.newObject("PartDesign::Pocket", "Pocket")
pocket1.Profile = sketch2
pocket1.setExpression("Length", "Params.pocket1_length")

sketch3 = body.newObject("Sketcher::SketchObject", "Sketch002")
sketch3.AttachmentSupport = (doc.getObject("XY_Plane"), [""])
sketch3.MapMode = "FlatFace"
sketch3.AttachmentOffset = App.Placement(Vector(0, 0, 0.5 * 25.4), App.Rotation())
sketch3.addGeometry([
    Part.Circle(Vector(257.2, -3.2, 0), Vector(0, 0, 1), 3.4),
    Part.Circle(Vector(257.2, 22.2, 0), Vector(0, 0, 1), 3.4),
], False)
sketch3.addConstraint([
    Sketcher.Constraint("Equal", 0, 1),
    Sketcher.Constraint("Vertical", 0, 3, 1, 3),
    Sketcher.Constraint("Diameter", 0, Q("0.265625 in")),
    Sketcher.Constraint("DistanceY", 0, 3, 1, 3, Q("1 in")),
    Sketcher.Constraint("DistanceX", -1, 1, 0, 3, Q("10.125 in")),
    Sketcher.Constraint("DistanceY", 0, 3, -1, 1, Q("0.127 in")),
])
sketch3.setExpression("Constraints[2]", "Params.sketch3_diameter")
pocket2 = body.newObject("PartDesign::Pocket", "Pocket001")
pocket2.Profile = sketch3
pocket2.setExpression("Length", "Params.pocket2_length")

sketch4 = body.newObject("Sketcher::SketchObject", "Sketch003")
sketch4.AttachmentSupport = (doc.getObject("XY_Plane"), [""])
sketch4.MapMode = "FlatFace"
sketch4.AttachmentOffset = App.Placement(Vector(0, 0, 0.25 * 25.4), App.Rotation())
sketch4.addGeometry([
    Part.Circle(Vector(257.2, -3.2, 0), Vector(0, 0, 1), 5.6),
    Part.Circle(Vector(257.2, -3.2, 0), Vector(0, 0, 1), 3.4),
    Part.Circle(Vector(257.2, 22.2, 0), Vector(0, 0, 1), 5.6),
    Part.Circle(Vector(257.2, 22.2, 0), Vector(0, 0, 1), 3.4),
    Part.Circle(Vector(257.2, 120.1, 0), Vector(0, 0, 1), 5.6),
    Part.Circle(Vector(257.2, 120.1, 0), Vector(0, 0, 1), 3.4),
    Part.Circle(Vector(257.2, 94.7, 0), Vector(0, 0, 1), 5.6),
    Part.Circle(Vector(257.2, 94.7, 0), Vector(0, 0, 1), 3.4),
], False)
sketch4.addConstraint([
    Sketcher.Constraint("Coincident", 1, 3, 0, 3),
    Sketcher.Constraint("Coincident", 3, 3, 2, 3),
    Sketcher.Constraint("Coincident", 5, 3, 4, 3),
    Sketcher.Constraint("Coincident", 7, 3, 6, 3),
    Sketcher.Constraint("Equal", 0, 2),
    Sketcher.Constraint("Equal", 1, 3),
    Sketcher.Constraint("Equal", 4, 6),
    Sketcher.Constraint("Equal", 5, 7),
    Sketcher.Constraint("Vertical", 1, 3, 2, 3),
    Sketcher.Constraint("Vertical", 3, 3, 4, 3),
    Sketcher.Constraint("Vertical", 5, 3, 6, 3),
    Sketcher.Constraint("Diameter", 4, Q("0.44 in")),
    Sketcher.Constraint("Diameter", 5, Q("0.27 in")),
    Sketcher.Constraint("Diameter", 0, Q("0.4375 in")),
    Sketcher.Constraint("Diameter", 1, Q("0.265625 in")),
    Sketcher.Constraint("DistanceY", 0, 3, 2, 3, Q("1 in")),
    Sketcher.Constraint("DistanceY", 6, 3, 4, 3, Q("1 in")),
    Sketcher.Constraint("DistanceX", -1, 1, 0, 3, Q("10.125 in")),
    Sketcher.Constraint("DistanceY", 0, 3, -1, 1, Q("0.127 in")),
    Sketcher.Constraint("DistanceY", -1, 1, 4, 3, 120.082848),
])
sketch4.setExpression("Constraints[11]", "Params.sketch4_diameter")
sketch4.setExpression("Constraints[12]", "Params.sketch4_diameter2")
sketch4.setExpression("Constraints[13]", "Params.sketch4_diameter3")
sketch4.setExpression("Constraints[14]", "Params.sketch4_diameter4")
pocket3 = body.newObject("PartDesign::Pocket", "Pocket002")
pocket3.Profile = sketch4
pocket3.setExpression("Length", "Params.pocket3_length")

sketch5 = body.newObject("Sketcher::SketchObject", "Sketch004")
sketch5.AttachmentSupport = (doc.getObject("XY_Plane"), [""])
sketch5.MapMode = "FlatFace"
sketch5.addGeometry([
    Part.Circle(Vector(23.1, 61.4, 0), Vector(0, 0, 1), 3.4),
    Part.Circle(Vector(23.1, 86.8, 0), Vector(0, 0, 1), 3.4),
], False)
sketch5.addConstraint([
    Sketcher.Constraint("Equal", 0, 1),
    Sketcher.Constraint("Vertical", 0, 3, 1, 3),
    Sketcher.Constraint("Diameter", 0, Q("0.265625 in")),
    Sketcher.Constraint("DistanceY", 0, 3, 1, 3, Q("1 in")),
    Sketcher.Constraint("DistanceX", -1, 1, 0, 3, Q("0.91 in")),
    Sketcher.Constraint("DistanceY", -1, 1, 0, 3, Q("2.417 in")),
])
sketch5.setExpression("Constraints[2]", "Params.sketch5_diameter")
pocket4 = body.newObject("PartDesign::Pocket", "Pocket003")
pocket4.Profile = sketch5
pocket4.setExpression("Length", "Params.pocket4_length")
pocket4.Reversed = True

sketch6 = body.newObject("Sketcher::SketchObject", "Sketch005")
sketch6.AttachmentSupport = (doc.getObject("XY_Plane"), [""])
sketch6.MapMode = "FlatFace"
sketch6.addGeometry([
    Part.Circle(Vector(23.1, 61.4, 0), Vector(0, 0, 1), 5.6),
    Part.Circle(Vector(23.1, 61.4, 0), Vector(0, 0, 1), 3.4),
    Part.Circle(Vector(23.1, 86.8, 0), Vector(0, 0, 1), 5.6),
    Part.Circle(Vector(23.1, 86.8, 0), Vector(0, 0, 1), 3.4),
], False)
sketch6.addConstraint([
    Sketcher.Constraint("Coincident", 1, 3, 0, 3),
    Sketcher.Constraint("Coincident", 3, 3, 2, 3),
    Sketcher.Constraint("Equal", 0, 2),
    Sketcher.Constraint("Equal", 1, 3),
    Sketcher.Constraint("Vertical", 1, 3, 2, 3),
    Sketcher.Constraint("Diameter", 0, Q("0.4375 in")),
    Sketcher.Constraint("Diameter", 1, Q("0.265625 in")),
    Sketcher.Constraint("DistanceY", 0, 3, 2, 3, Q("1 in")),
    Sketcher.Constraint("DistanceX", -1, 1, 0, 3, Q("0.91 in")),
    Sketcher.Constraint("DistanceY", -1, 1, 0, 3, Q("2.417 in")),
])
sketch6.setExpression("Constraints[5]", "Params.sketch6_diameter")
sketch6.setExpression("Constraints[6]", "Params.sketch6_diameter2")
pocket5 = body.newObject("PartDesign::Pocket", "Pocket004")
pocket5.Profile = sketch6
pocket5.setExpression("Length", "Params.pocket5_length")
pocket5.Reversed = True

doc.recompute()
